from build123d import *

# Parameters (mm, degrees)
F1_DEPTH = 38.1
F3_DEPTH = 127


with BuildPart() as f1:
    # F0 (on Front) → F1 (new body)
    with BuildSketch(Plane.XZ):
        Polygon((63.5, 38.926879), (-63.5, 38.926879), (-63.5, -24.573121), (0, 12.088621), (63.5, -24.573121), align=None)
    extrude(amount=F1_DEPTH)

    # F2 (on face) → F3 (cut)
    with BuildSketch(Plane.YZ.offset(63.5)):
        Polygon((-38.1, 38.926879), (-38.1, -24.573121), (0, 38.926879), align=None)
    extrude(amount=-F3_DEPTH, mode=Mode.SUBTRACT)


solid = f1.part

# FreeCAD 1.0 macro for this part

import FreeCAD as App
import Part
import Sketcher
Q = App.Units.Quantity

doc = App.newDocument("Part")
body = doc.addObject("PartDesign::Body", "Body")

sketch1 = body.newObject("Sketcher::SketchObject", "Sketch")
sketch1.AttachmentSupport = (doc.getObject("XZ_Plane"), [""])
sketch1.MapMode = "FlatFace"
sketch1.addGeometry([
    Part.LineSegment(App.Vector(64, 39, 0), App.Vector(-64, 39, 0)),
    Part.LineSegment(App.Vector(-64, 39, 0), App.Vector(-64, -25, 0)),
    Part.LineSegment(App.Vector(-64, -25, 0), App.Vector(0, 12, 0)),
    Part.LineSegment(App.Vector(0, 12, 0), App.Vector(64, -25, 0)),
    Part.LineSegment(App.Vector(64, -25, 0), App.Vector(64, 39, 0)),
], False)
sketch1.addConstraint([
    Sketcher.Constraint("Coincident", 0, 2, 1, 1),
    Sketcher.Constraint("Coincident", 1, 2, 2, 1),
    Sketcher.Constraint("Coincident", 2, 2, 3, 1),
    Sketcher.Constraint("Coincident", 3, 2, 4, 1),
    Sketcher.Constraint("Coincident", 4, 2, 0, 1),
    Sketcher.Constraint("Horizontal", 0),
    Sketcher.Constraint("Vertical", 1),
    Sketcher.Constraint("Vertical", 4),
    Sketcher.Constraint("Symmetric", 1, 2, 3, 2, -2),
    Sketcher.Constraint("PointOnObject", 2, 2, -2),
    Sketcher.Constraint("DistanceX", 0, 2, 0, 1, Q("5 in")),
    Sketcher.Constraint("DistanceY", 1, 2, 1, 1, Q("2.5 in")),
    Sketcher.Constraint("Angle", 2, Q("30 deg")),
    Sketcher.Constraint("DistanceY", -1, 1, 0, 2, 38.926879),
])
pad1 = body.newObject("PartDesign::Pad", "Pad")
pad1.Profile = sketch1
pad1.Length = Q("1.5 in")

sketch2 = body.newObject("Sketcher::SketchObject", "Sketch001")
sketch2.AttachmentSupport = (doc.getObject("YZ_Plane"), [""])
sketch2.MapMode = "FlatFace"
sketch2.AttachmentOffset = App.Placement(App.Vector(0, 0, 2.5 * 25.4), App.Rotation())
sketch2.addGeometry([
    Part.LineSegment(App.Vector(-38, 39, 0), App.Vector(-38, -25, 0)),
    Part.LineSegment(App.Vector(-38, -25, 0), App.Vector(0, 39, 0)),
    Part.LineSegment(App.Vector(0, 39, 0), App.Vector(-38, 39, 0)),
], False)
sketch2.addConstraint([
    Sketcher.Constraint("Coincident", 0, 2, 1, 1),
    Sketcher.Constraint("Coincident", 1, 2, 2, 1),
    Sketcher.Constraint("Coincident", 2, 2, 0, 1),
    Sketcher.Constraint("Vertical", 0),
    Sketcher.Constraint("Horizontal", 2),
    Sketcher.Constraint("PointOnObject", 1, 2, -2),
    Sketcher.Constraint("DistanceX", 2, 2, 2, 1, Q("1.5 in")),
    Sketcher.Constraint("DistanceY", 0, 2, 0, 1, Q("2.5 in")),
    Sketcher.Constraint("DistanceY", 0, 2, -1, 1, 24.573121),
])
pocket1 = body.newObject("PartDesign::Pocket", "Pocket")
pocket1.Profile = sketch2
pocket1.Length = Q("5 in")

doc.recompute()
